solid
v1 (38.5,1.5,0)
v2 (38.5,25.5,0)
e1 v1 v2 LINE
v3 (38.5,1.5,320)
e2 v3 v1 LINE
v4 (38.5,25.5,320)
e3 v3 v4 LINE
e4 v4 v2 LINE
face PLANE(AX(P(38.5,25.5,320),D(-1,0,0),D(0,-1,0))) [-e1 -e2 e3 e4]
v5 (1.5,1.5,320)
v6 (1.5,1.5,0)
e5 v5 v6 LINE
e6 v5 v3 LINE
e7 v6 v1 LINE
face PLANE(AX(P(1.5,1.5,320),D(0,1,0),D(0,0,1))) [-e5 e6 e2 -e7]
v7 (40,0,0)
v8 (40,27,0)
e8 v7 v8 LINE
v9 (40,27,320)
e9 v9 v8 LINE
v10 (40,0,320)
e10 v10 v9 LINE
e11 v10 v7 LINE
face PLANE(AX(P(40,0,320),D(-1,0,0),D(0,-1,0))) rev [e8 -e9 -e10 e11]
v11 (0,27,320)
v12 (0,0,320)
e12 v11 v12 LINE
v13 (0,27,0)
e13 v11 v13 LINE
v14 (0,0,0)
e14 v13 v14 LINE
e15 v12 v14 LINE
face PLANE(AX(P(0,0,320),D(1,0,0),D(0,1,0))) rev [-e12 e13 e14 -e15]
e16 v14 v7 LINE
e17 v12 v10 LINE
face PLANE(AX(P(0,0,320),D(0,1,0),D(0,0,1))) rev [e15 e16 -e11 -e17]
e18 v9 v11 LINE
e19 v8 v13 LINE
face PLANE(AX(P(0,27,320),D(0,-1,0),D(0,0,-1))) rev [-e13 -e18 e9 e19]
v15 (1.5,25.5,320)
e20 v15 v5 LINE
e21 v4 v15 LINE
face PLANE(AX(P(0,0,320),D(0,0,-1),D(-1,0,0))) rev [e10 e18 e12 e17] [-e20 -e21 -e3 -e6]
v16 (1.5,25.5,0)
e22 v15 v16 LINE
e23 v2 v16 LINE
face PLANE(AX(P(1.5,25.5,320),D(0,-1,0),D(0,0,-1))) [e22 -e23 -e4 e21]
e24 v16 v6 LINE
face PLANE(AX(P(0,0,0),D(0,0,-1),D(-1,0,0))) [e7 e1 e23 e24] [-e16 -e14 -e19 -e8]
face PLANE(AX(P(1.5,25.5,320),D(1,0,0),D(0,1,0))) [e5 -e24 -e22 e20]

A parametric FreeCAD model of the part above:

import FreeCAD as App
import Part
import Sketcher
from FreeCAD import Vector
Q = App.Units.Quantity


def add_polygon(sketch, points):
    """Adds a closed chain of lines whose ends are joined by coincident constraints."""
    first, n = sketch.GeometryCount, len(points)
    for a, b in zip(points, points[1:] + points[:1]):
        sketch.addGeometry(Part.LineSegment(App.Vector(*a, 0), App.Vector(*b, 0)), False)
    for i in range(n):
        sketch.addConstraint(Sketcher.Constraint("Coincident", first + i, 2, first + (i + 1) % n, 1))

doc = App.newDocument("Part")
body = doc.addObject("PartDesign::Body", "Body")

# Sketch on XY plane
sketch1 = body.newObject("Sketcher::SketchObject", "Sketch")
sketch1.AttachmentSupport = (doc.getObject("XY_Plane"), [""])
sketch1.MapMode = "FlatFace"
add_polygon(sketch1, [(0, 27), (0, 0), (40, 0), (40, 27)])  # lines 0-3
add_polygon(sketch1, [(38, 2), (2, 2), (2, 26), (38, 26)])  # lines 4-7
sketch1.addConstraint(Sketcher.Constraint("Vertical", 0))
sketch1.addConstraint(Sketcher.Constraint("Horizontal", 1))
sketch1.addConstraint(Sketcher.Constraint("Vertical", 2))
sketch1.addConstraint(Sketcher.Constraint("Horizontal", 3))
sketch1.addConstraint(Sketcher.Constraint("Horizontal", 4))
sketch1.addConstraint(Sketcher.Constraint("Vertical", 5))
sketch1.addConstraint(Sketcher.Constraint("Horizontal", 6))
sketch1.addConstraint(Sketcher.Constraint("Vertical", 7))
sketch1.addConstraint(Sketcher.Constraint("Coincident", 0, 2, -1, 1))
sketch1.addConstraint(Sketcher.Constraint("DistanceX", 1, 1, 1, 2, Q("40 mm")))
sketch1.addConstraint(Sketcher.Constraint("DistanceX", 4, 2, 4, 1, Q("37 mm")))
sketch1.addConstraint(Sketcher.Constraint("DistanceY", 0, 2, 0, 1, Q("27 mm")))
sketch1.addConstraint(Sketcher.Constraint("DistanceY", 5, 1, 5, 2, Q("24 mm")))
sketch1.addConstraint(Sketcher.Constraint("DistanceX", -1, 1, 4, 2, Q("1.5 mm")))
sketch1.addConstraint(Sketcher.Constraint("DistanceY", -1, 1, 4, 2, Q("1.5 mm")))
pad1 = body.newObject("PartDesign::Pad", "Pad")
pad1.Profile = sketch1
pad1.Length = 320

doc.recompute()
